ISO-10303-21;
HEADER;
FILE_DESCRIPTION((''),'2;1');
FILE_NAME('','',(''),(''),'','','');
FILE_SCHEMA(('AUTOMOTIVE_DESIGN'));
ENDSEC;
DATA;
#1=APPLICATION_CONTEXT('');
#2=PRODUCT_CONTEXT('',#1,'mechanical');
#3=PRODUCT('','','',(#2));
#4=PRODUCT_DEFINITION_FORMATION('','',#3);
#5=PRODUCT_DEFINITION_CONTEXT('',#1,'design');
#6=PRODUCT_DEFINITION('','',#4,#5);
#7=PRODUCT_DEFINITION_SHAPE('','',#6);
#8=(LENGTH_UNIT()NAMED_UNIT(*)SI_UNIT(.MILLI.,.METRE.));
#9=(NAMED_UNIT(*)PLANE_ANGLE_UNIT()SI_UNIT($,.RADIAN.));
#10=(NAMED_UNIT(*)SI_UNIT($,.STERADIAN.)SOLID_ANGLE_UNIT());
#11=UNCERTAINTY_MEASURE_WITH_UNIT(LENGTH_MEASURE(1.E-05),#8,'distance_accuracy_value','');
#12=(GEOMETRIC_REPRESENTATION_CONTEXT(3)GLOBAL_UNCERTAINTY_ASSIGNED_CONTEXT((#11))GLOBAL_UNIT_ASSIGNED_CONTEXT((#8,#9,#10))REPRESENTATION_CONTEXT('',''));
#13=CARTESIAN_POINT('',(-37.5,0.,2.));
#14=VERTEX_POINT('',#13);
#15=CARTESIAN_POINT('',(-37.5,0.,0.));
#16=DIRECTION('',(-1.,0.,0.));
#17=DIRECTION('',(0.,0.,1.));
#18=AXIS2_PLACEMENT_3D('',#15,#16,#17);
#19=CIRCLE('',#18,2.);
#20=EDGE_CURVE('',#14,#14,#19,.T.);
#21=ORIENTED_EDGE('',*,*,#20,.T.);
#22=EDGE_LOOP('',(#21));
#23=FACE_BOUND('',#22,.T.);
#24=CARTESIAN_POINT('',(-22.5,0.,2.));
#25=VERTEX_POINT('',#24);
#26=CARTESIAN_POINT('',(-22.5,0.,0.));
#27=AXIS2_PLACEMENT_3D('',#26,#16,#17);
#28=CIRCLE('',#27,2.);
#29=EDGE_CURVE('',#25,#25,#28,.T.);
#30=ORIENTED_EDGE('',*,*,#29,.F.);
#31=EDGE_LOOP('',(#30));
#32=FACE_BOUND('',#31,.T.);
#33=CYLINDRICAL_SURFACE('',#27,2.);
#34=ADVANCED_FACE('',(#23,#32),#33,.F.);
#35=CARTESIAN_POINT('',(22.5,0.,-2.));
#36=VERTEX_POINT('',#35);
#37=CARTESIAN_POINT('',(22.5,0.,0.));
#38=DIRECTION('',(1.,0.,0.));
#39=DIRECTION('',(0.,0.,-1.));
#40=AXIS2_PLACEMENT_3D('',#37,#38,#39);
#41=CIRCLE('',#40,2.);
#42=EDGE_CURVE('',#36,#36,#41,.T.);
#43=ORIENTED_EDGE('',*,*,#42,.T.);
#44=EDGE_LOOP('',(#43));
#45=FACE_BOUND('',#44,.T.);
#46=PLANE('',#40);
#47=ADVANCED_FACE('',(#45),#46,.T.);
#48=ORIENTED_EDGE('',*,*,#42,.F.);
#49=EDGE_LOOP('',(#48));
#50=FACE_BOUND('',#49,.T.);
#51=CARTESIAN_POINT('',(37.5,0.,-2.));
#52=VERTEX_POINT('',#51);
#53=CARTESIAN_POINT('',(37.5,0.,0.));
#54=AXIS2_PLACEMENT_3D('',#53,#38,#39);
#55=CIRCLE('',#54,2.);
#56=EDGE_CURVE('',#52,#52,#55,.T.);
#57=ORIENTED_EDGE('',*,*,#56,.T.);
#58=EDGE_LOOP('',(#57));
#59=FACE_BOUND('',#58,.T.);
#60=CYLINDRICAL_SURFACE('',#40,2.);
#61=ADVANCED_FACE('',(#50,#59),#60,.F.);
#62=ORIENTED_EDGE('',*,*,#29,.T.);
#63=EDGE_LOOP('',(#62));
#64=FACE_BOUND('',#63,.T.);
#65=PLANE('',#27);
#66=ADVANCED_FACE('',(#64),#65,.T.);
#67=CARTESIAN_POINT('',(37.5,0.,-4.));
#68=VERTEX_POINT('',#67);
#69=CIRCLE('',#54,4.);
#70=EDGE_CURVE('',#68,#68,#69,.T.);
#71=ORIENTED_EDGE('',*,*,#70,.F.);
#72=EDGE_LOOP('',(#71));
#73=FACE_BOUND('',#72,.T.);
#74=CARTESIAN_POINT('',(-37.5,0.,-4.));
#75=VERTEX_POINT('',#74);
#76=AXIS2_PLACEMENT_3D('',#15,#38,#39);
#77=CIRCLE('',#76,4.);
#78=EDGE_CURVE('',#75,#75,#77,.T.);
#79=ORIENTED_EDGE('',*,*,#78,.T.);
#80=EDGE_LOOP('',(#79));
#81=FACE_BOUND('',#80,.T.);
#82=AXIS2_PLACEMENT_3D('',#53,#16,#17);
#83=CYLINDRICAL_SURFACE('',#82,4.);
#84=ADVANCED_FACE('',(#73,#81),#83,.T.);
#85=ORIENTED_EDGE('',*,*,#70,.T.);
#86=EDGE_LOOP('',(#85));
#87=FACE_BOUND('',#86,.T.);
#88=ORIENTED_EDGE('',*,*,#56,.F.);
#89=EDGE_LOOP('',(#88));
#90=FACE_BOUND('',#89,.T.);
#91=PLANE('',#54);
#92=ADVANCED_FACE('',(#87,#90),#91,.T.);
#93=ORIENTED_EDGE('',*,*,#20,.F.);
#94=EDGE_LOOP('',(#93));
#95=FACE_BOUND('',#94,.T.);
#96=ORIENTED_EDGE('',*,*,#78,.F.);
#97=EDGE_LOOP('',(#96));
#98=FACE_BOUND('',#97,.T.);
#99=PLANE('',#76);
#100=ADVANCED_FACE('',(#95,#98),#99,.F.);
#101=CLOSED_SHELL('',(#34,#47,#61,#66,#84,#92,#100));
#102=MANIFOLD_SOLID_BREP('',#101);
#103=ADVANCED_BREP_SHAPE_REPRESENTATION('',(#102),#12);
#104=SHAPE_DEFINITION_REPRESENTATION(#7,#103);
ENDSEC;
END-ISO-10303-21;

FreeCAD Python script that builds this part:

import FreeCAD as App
import Part
import Sketcher

V = App.Vector
Q = App.Units.Quantity

doc = App.newDocument("Part")
body = doc.addObject("PartDesign::Body", "Body")

# Sketch on YZ plane
sketch1 = doc.addObject("Sketcher::SketchObject", "Sketch")
body.addObject(sketch1)
sketch1.AttachmentSupport = (doc.YZ_Plane, [""])
sketch1.MapMode = "FlatFace"
sketch1.addGeometry(Part.Circle(V(0, 0, 0), V(0, 0, 1), 4), False)
sketch1.addConstraint([
    Sketcher.Constraint("Coincident", 0, 3, -1, 1),
    Sketcher.Constraint("Diameter", 0, Q("8 mm")),
])
pad1 = doc.addObject("PartDesign::Pad", "Pad")
body.addObject(pad1)
pad1.Profile = sketch1
pad1.Length = 75
pad1.Midplane = True

# Sketch on YZ plane
sketch2 = doc.addObject("Sketcher::SketchObject", "Sketch001")
body.addObject(sketch2)
sketch2.AttachmentSupport = (doc.YZ_Plane, [""])
sketch2.MapMode = "FlatFace"
sketch2.AttachmentOffset = App.Placement(V(0, 0, 37.5), App.Rotation())
sketch2.addGeometry(Part.Circle(V(0, 0, 0), V(0, 0, 1), 2), False)
sketch2.addConstraint([
    Sketcher.Constraint("Coincident", 0, 3, -1, 1),
    Sketcher.Constraint("Diameter", 0, Q("4 mm")),
])
pocket1 = doc.addObject("PartDesign::Pocket", "Pocket")
body.addObject(pocket1)
pocket1.Profile = sketch2
pocket1.Length = 15

# Sketch on YZ plane
sketch3 = doc.addObject("Sketcher::SketchObject", "Sketch002")
body.addObject(sketch3)
sketch3.AttachmentSupport = (doc.YZ_Plane, [""])
sketch3.MapMode = "FlatFace"
sketch3.AttachmentOffset = App.Placement(V(0, 0, -22.5), App.Rotation())
sketch3.addGeometry(Part.Circle(V(0, 0, 0), V(0, 0, 1), 2), False)
sketch3.addConstraint([
    Sketcher.Constraint("Coincident", 0, 3, -1, 1),
    Sketcher.Constraint("Diameter", 0, Q("4 mm")),
])
pocket2 = doc.addObject("PartDesign::Pocket", "Pocket001")
body.addObject(pocket2)
pocket2.Profile = sketch3
pocket2.Length = 15

doc.recompute()
